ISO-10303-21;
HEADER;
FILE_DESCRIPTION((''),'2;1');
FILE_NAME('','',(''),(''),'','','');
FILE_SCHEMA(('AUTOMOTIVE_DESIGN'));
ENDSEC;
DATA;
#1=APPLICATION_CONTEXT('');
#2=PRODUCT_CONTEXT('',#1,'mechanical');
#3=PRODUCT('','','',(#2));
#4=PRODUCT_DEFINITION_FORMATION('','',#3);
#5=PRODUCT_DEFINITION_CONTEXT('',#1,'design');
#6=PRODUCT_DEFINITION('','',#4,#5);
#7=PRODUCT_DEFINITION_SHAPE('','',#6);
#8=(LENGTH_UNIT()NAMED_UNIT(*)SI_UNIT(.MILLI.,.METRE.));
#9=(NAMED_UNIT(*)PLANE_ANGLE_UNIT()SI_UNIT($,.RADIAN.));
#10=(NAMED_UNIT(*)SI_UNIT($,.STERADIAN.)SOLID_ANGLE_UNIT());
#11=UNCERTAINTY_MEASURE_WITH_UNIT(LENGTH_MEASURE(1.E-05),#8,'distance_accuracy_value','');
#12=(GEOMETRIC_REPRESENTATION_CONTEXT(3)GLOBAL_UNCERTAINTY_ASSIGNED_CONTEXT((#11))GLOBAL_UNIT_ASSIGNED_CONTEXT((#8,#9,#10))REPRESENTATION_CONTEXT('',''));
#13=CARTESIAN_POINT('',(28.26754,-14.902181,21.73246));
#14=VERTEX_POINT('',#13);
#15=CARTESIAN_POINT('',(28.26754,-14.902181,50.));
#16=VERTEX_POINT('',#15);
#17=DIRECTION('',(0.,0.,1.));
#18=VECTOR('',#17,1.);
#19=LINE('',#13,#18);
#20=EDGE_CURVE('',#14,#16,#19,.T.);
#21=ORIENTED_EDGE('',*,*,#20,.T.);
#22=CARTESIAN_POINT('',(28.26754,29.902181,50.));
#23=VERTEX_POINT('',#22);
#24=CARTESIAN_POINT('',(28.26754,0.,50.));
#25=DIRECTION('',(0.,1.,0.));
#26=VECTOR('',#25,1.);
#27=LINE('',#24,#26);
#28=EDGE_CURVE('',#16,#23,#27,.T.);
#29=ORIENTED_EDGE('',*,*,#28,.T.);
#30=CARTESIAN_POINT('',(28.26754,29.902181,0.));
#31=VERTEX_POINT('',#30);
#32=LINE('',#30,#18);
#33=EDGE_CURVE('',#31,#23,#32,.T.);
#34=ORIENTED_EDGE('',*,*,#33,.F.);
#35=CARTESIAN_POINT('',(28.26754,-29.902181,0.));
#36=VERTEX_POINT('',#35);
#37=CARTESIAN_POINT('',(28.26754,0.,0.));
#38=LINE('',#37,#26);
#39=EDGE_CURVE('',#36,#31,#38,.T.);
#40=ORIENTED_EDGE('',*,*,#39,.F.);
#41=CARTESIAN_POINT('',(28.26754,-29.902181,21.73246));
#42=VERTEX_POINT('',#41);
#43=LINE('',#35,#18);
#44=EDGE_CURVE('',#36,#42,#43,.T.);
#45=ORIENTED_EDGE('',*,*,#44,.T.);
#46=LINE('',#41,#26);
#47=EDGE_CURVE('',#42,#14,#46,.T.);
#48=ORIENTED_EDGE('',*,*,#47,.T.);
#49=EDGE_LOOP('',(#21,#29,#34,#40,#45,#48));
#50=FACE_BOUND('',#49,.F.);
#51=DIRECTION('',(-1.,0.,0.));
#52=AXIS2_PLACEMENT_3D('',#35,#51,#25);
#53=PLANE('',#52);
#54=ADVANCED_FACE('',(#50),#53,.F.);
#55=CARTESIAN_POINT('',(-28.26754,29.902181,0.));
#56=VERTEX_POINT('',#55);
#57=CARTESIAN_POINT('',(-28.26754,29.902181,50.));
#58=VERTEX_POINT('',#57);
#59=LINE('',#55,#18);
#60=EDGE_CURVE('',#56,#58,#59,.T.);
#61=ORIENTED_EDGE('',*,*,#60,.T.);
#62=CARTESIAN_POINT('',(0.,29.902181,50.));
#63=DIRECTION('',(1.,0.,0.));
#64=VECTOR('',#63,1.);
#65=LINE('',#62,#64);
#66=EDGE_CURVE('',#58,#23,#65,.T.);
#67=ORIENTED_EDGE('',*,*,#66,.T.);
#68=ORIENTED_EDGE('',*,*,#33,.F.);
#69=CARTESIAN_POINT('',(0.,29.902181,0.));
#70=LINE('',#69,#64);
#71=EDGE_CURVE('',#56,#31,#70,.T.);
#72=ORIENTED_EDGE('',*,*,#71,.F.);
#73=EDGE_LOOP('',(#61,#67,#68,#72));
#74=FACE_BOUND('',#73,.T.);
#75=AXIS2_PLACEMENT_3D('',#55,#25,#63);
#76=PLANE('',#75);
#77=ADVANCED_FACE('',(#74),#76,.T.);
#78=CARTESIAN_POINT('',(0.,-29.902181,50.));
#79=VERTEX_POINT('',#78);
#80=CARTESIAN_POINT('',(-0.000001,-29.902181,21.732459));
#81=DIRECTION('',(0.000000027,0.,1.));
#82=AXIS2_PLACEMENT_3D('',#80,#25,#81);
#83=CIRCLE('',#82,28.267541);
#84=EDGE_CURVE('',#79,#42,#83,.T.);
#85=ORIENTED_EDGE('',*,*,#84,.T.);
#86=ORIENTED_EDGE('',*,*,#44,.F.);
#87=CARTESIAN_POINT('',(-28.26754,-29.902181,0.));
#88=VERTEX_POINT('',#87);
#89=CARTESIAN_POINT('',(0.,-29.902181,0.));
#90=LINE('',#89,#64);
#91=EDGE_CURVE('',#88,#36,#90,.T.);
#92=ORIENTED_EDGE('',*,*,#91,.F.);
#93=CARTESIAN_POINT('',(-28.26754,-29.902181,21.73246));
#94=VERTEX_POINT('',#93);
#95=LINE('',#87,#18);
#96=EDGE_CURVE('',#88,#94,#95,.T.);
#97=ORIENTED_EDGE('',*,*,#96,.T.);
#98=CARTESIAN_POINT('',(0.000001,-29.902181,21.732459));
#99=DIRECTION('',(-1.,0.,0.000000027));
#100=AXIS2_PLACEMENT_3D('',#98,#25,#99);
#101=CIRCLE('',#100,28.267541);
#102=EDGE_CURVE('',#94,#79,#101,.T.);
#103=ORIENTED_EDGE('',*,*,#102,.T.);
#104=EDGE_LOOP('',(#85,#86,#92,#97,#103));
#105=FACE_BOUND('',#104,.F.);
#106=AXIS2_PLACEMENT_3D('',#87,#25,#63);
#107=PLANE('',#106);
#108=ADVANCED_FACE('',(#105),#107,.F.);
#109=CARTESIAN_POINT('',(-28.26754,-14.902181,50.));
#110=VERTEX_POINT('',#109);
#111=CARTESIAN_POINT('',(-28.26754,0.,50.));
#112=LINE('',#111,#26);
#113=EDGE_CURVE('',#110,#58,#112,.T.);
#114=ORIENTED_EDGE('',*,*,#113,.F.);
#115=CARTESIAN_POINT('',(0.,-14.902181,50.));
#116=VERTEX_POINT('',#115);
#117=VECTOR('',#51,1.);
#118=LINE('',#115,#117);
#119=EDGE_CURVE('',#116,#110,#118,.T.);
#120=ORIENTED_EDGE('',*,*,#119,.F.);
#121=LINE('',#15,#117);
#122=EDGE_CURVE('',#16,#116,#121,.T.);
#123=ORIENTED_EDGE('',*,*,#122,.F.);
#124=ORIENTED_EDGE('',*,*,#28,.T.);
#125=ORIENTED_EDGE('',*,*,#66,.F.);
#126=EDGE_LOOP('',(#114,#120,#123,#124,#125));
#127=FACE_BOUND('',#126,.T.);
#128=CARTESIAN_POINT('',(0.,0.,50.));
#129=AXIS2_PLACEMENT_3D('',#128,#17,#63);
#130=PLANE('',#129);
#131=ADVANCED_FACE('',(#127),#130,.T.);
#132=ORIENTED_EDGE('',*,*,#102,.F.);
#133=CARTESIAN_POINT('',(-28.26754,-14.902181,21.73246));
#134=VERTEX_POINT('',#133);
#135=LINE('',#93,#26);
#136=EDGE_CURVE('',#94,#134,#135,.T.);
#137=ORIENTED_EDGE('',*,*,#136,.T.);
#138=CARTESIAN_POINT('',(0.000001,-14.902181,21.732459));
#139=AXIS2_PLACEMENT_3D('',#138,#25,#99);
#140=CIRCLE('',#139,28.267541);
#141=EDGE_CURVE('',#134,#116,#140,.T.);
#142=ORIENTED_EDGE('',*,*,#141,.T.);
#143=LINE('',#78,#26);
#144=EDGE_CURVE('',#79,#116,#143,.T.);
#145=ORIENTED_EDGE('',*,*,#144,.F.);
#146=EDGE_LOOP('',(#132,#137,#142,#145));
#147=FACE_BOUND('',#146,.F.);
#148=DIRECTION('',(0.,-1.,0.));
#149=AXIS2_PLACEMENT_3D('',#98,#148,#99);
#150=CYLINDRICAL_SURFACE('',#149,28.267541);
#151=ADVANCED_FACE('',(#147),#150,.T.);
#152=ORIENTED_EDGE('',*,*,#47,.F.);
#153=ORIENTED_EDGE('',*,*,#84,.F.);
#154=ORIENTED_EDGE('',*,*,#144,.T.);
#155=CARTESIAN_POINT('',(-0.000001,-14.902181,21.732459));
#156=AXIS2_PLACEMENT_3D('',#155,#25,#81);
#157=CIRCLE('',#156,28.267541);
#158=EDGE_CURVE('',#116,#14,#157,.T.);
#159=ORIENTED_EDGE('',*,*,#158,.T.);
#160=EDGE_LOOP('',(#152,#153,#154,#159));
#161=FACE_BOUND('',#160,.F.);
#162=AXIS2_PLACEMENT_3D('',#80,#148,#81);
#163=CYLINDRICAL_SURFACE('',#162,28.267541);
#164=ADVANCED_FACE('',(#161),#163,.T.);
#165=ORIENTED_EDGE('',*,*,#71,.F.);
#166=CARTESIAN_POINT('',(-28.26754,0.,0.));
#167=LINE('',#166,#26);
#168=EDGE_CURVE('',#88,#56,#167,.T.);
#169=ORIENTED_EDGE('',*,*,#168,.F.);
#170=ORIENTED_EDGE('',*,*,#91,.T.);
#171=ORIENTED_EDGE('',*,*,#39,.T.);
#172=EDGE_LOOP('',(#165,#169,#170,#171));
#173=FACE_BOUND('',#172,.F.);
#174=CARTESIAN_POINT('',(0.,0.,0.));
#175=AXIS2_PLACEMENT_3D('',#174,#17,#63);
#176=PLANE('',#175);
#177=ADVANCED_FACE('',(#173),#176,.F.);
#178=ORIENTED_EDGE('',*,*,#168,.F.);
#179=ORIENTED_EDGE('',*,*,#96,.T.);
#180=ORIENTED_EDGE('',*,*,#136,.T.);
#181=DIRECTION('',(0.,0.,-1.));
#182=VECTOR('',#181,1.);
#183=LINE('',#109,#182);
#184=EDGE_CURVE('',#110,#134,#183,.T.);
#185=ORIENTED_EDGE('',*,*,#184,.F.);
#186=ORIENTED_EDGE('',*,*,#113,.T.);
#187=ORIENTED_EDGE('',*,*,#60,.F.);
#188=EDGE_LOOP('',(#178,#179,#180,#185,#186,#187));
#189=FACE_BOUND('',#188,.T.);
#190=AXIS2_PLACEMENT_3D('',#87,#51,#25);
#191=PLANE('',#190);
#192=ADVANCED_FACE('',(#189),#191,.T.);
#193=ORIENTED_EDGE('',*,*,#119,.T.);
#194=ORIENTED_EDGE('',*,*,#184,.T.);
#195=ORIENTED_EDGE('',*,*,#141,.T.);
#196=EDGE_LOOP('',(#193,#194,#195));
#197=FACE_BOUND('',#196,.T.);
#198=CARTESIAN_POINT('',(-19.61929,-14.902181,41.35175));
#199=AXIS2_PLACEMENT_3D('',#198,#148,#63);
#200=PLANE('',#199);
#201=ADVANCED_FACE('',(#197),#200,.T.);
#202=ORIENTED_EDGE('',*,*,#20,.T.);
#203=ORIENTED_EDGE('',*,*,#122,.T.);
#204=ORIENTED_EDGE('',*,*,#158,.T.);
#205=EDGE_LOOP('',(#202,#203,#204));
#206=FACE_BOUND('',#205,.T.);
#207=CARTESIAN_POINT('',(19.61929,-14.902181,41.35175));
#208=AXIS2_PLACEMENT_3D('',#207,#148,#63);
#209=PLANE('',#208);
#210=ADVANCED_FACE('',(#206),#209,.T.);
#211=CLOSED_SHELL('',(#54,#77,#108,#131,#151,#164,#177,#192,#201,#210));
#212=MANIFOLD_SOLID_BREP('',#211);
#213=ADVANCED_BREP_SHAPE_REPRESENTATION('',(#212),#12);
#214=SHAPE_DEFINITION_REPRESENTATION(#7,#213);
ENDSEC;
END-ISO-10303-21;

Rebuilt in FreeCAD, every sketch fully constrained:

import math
import FreeCAD as App
import Part
import Sketcher
Q = App.Units.Quantity

doc = App.newDocument("Part")
body = doc.addObject("PartDesign::Body", "Body")

# Sketch on XY plane
sketch1 = doc.addObject("Sketcher::SketchObject", "Sketch")
body.addObject(sketch1)
sketch1.AttachmentSupport = (doc.XY_Plane, [""])
sketch1.MapMode = "FlatFace"
sketch1.addGeometry([
    Part.LineSegment(App.Vector(-28, 30, 0), App.Vector(-28, -30, 0)),
    Part.LineSegment(App.Vector(-28, -30, 0), App.Vector(28, -30, 0)),
    Part.LineSegment(App.Vector(28, -30, 0), App.Vector(28, 30, 0)),
    Part.LineSegment(App.Vector(28, 30, 0), App.Vector(-28, 30, 0)),
], False)
sketch1.addConstraint([
    Sketcher.Constraint("Coincident", 0, 2, 1, 1),
    Sketcher.Constraint("Coincident", 1, 2, 2, 1),
    Sketcher.Constraint("Coincident", 2, 2, 3, 1),
    Sketcher.Constraint("Coincident", 3, 2, 0, 1),
    Sketcher.Constraint("Vertical", 0),
    Sketcher.Constraint("Horizontal", 1),
    Sketcher.Constraint("Vertical", 2),
    Sketcher.Constraint("Horizontal", 3),
    Sketcher.Constraint("Symmetric", 0, 2, 2, 2, -1, 1),
    Sketcher.Constraint("DistanceX", 1, 1, 1, 2, Q("56.53508 mm")),
    Sketcher.Constraint("DistanceY", 0, 2, 0, 1, Q("59.804362 mm")),
])
pad1 = doc.addObject("PartDesign::Pad", "Pad")
body.addObject(pad1)
pad1.Profile = sketch1
pad1.Length = 50

# Sketch on XZ plane
sketch2 = doc.addObject("Sketcher::SketchObject", "Sketch001")
body.addObject(sketch2)
sketch2.AttachmentSupport = (doc.XZ_Plane, [""])
sketch2.MapMode = "FlatFace"
sketch2.AttachmentOffset = App.Placement(App.Vector(0, 0, 29.902181), App.Rotation())
sketch2.addGeometry([
    Part.ArcOfCircle(Part.Circle(App.Vector(0, 22, 0), App.Vector(0, 0, 1), 28), math.radians(0), math.radians(90)),  # 0
    Part.LineSegment(App.Vector(28, 22, 0), App.Vector(28, 50, 0)),  # 1
    Part.LineSegment(App.Vector(28, 50, 0), App.Vector(0, 50, 0)),  # 2
    Part.ArcOfCircle(Part.Circle(App.Vector(0, 22, 0), App.Vector(0, 0, 1), 28), math.radians(90), math.radians(180)),  # 3
    Part.LineSegment(App.Vector(0, 50, 0), App.Vector(-28, 50, 0)),  # 4
    Part.LineSegment(App.Vector(-28, 50, 0), App.Vector(-28, 22, 0)),  # 5
], False)
sketch2.addConstraint([
    Sketcher.Constraint("Tangent", 0, 1, 1, 1),
    Sketcher.Constraint("Coincident", 1, 2, 2, 1),
    Sketcher.Constraint("Tangent", 2, 2, 0, 2),
    Sketcher.Constraint("Tangent", 3, 1, 4, 1),
    Sketcher.Constraint("Coincident", 4, 2, 5, 1),
    Sketcher.Constraint("Tangent", 5, 2, 3, 2),
    Sketcher.Constraint("Vertical", 1),
    Sketcher.Constraint("Horizontal", 2),
    Sketcher.Constraint("Horizontal", 4),
    Sketcher.Constraint("Vertical", 5),
    Sketcher.Constraint("Coincident", 3, 3, 0, 3),
    Sketcher.Constraint("Equal", 0, 3),
    Sketcher.Constraint("PointOnObject", 0, 3, -2),
    Sketcher.Constraint("DistanceY", -1, 1, 1, 2, Q("50 mm")),
    Sketcher.Constraint("Radius", 0, Q("28.267541 mm")),
])
pocket1 = doc.addObject("PartDesign::Pocket", "Pocket")
body.addObject(pocket1)
pocket1.Profile = sketch2
pocket1.Length = 15

doc.recompute()
